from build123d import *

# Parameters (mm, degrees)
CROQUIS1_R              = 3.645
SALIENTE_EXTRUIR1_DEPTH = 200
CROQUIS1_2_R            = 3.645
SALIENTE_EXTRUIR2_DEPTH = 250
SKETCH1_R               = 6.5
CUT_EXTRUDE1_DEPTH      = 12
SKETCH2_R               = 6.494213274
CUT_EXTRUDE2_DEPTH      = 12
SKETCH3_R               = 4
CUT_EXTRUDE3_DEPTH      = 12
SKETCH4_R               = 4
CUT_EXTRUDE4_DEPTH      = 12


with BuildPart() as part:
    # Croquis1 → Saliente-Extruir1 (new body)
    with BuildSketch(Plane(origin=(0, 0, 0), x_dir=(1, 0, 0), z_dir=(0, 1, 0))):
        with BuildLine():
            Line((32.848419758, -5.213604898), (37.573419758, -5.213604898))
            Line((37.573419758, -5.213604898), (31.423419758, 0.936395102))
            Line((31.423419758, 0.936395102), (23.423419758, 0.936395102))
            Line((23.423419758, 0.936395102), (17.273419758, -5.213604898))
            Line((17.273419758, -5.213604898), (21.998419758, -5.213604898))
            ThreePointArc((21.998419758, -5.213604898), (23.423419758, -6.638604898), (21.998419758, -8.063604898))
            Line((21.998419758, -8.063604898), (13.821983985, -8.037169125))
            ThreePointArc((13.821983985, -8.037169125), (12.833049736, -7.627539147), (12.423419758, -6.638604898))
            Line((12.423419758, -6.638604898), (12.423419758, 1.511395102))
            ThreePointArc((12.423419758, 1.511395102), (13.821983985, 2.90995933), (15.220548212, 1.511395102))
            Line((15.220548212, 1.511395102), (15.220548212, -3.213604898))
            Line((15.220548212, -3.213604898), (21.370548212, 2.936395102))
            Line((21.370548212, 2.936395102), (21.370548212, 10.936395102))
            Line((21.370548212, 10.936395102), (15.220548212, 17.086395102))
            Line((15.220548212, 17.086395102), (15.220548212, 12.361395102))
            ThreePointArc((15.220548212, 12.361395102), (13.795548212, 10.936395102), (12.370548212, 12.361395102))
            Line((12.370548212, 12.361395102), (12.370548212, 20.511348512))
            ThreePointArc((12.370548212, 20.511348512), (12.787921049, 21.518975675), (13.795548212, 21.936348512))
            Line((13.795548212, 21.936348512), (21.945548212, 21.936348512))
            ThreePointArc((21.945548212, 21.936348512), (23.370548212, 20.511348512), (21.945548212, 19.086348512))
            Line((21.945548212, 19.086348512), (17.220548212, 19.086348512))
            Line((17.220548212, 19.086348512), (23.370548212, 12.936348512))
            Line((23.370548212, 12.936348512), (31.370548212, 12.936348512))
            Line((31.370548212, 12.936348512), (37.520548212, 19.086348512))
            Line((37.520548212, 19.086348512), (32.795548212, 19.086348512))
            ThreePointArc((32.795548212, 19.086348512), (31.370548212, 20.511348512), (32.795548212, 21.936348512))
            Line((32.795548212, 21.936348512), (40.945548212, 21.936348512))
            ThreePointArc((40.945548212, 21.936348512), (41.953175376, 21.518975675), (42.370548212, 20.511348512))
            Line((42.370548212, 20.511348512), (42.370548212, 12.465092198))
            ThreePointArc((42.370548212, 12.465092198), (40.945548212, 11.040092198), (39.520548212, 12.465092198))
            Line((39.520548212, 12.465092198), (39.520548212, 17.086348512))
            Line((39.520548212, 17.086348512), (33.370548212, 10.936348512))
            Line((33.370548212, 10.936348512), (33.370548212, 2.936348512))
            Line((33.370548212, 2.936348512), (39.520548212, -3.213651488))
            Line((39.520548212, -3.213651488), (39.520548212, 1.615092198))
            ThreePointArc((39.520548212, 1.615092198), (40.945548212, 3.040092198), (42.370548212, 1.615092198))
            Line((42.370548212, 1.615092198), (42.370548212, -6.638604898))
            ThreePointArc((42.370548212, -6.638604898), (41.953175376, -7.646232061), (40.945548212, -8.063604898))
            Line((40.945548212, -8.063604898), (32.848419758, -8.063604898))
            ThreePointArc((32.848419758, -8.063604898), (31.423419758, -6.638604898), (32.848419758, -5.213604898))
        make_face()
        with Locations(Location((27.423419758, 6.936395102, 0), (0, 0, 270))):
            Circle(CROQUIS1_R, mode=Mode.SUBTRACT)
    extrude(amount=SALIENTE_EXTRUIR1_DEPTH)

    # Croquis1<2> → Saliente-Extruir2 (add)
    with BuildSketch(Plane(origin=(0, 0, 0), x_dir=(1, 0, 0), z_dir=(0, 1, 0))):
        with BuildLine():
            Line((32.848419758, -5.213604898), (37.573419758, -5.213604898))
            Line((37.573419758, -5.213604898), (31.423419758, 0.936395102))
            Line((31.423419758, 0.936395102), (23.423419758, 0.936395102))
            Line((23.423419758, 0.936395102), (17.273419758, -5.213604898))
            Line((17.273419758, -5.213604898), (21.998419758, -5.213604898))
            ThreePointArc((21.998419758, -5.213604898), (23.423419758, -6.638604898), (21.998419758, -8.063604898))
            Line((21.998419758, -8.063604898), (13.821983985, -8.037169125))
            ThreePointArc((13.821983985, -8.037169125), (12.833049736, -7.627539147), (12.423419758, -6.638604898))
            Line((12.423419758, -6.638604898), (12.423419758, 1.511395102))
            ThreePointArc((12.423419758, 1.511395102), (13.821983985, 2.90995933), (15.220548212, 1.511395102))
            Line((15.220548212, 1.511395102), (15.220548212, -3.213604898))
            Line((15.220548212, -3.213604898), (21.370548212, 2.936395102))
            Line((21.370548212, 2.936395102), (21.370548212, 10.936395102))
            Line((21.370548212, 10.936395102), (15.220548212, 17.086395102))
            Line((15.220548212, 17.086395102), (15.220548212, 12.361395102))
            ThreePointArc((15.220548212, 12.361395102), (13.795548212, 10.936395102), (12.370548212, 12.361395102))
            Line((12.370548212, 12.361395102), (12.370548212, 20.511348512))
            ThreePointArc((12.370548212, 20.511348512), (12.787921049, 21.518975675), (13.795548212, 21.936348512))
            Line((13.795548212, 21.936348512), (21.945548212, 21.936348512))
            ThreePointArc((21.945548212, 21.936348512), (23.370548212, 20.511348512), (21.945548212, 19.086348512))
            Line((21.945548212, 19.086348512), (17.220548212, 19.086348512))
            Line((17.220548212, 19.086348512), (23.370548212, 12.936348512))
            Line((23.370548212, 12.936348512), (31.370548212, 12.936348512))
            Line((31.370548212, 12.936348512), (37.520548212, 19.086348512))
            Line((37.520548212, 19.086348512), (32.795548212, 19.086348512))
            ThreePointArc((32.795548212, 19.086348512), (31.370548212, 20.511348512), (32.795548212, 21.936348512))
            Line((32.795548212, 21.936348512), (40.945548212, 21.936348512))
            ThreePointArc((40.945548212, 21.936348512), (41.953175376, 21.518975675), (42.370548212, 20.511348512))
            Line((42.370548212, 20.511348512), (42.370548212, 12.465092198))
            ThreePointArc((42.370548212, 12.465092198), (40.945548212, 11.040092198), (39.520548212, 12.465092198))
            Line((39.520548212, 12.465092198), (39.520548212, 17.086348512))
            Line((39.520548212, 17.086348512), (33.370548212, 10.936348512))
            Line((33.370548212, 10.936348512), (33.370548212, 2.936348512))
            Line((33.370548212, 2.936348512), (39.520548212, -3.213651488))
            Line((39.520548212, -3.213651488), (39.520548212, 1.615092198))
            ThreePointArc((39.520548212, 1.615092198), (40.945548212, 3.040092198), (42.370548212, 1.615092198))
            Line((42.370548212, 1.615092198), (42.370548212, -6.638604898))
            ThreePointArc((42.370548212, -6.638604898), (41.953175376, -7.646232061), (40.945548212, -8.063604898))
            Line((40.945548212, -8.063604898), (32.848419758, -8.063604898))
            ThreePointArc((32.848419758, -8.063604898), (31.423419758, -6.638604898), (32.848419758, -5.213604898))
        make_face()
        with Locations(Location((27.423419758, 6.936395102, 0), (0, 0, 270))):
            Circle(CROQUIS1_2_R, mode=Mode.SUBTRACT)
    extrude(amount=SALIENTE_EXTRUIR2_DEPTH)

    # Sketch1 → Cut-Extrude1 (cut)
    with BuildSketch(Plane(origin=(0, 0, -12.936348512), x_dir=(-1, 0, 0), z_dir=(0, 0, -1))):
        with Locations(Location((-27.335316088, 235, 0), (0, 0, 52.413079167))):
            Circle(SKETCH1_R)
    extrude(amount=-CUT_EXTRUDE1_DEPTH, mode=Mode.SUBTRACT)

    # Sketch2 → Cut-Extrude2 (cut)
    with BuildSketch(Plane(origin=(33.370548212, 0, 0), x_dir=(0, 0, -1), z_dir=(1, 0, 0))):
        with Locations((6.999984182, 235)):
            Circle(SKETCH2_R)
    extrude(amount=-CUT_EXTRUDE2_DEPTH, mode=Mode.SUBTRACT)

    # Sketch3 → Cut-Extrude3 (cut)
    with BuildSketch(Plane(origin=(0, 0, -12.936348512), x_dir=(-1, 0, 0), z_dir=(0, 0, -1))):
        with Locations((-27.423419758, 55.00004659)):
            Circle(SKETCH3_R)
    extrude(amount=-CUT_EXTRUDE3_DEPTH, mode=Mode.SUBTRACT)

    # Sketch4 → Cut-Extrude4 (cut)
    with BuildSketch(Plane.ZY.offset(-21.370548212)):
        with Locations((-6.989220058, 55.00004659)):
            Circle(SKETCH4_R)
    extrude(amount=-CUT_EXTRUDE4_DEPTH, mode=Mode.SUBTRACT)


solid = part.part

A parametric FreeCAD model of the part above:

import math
import FreeCAD as App
import Part
import Sketcher

V = App.Vector
Q = App.Units.Quantity

doc = App.newDocument("Part")
body = doc.addObject("PartDesign::Body", "Body")

sketch1 = body.newObject("Sketcher::SketchObject", "Sketch")
sketch1.AttachmentSupport = (doc.getObject("XZ_Plane"), [""])
sketch1.MapMode = "FlatFace"
sketch1.addGeometry(Part.LineSegment(V(37.6, 5.2, 0), V(32.8, 5.2, 0)), False)
sketch1.addGeometry(Part.ArcOfCircle(Part.Circle(V(32.8, 6.6, 0), V(0, 0, 1), 1.4), math.radians(90), math.radians(270)), False)
sketch1.addGeometry(Part.LineSegment(V(32.8, 8.1, 0), V(40.9, 8.1, 0)), False)
sketch1.addGeometry(Part.ArcOfCircle(Part.Circle(V(40.9, 6.6, 0), V(0, 0, 1), 1.4), math.radians(0), math.radians(90)), False)
sketch1.addGeometry(Part.LineSegment(V(42.4, 6.6, 0), V(42.4, -1.6, 0)), False)
sketch1.addGeometry(Part.ArcOfCircle(Part.Circle(V(40.9, -1.6, 0), V(0, 0, 1), 1.4), math.radians(180), math.radians(360)), False)
sketch1.addGeometry(Part.LineSegment(V(39.5, -1.6, 0), V(39.5, 3.2, 0)), False)
sketch1.addGeometry(Part.LineSegment(V(39.5, 3.2, 0), V(33.4, -2.9, 0)), False)
sketch1.addGeometry(Part.LineSegment(V(33.4, -2.9, 0), V(33.4, -10.9, 0)), False)
sketch1.addGeometry(Part.LineSegment(V(33.4, -10.9, 0), V(39.5, -17.1, 0)), False)
sketch1.addGeometry(Part.LineSegment(V(39.5, -17.1, 0), V(39.5, -12.5, 0)), False)
sketch1.addGeometry(Part.ArcOfCircle(Part.Circle(V(40.9, -12.5, 0), V(0, 0, 1), 1.4), math.radians(0), math.radians(180)), False)
sketch1.addGeometry(Part.LineSegment(V(42.4, -12.5, 0), V(42.4, -20.5, 0)), False)
sketch1.addGeometry(Part.ArcOfCircle(Part.Circle(V(40.9, -20.5, 0), V(0, 0, 1), 1.4), math.radians(-90), math.radians(0)), False)
sketch1.addGeometry(Part.LineSegment(V(40.9, -21.9, 0), V(32.8, -21.9, 0)), False)
sketch1.addGeometry(Part.ArcOfCircle(Part.Circle(V(32.8, -20.5, 0), V(0, 0, 1), 1.4), math.radians(90), math.radians(270)), False)
sketch1.addGeometry(Part.LineSegment(V(32.8, -19.1, 0), V(37.5, -19.1, 0)), False)
sketch1.addGeometry(Part.LineSegment(V(37.5, -19.1, 0), V(31.4, -12.9, 0)), False)
sketch1.addGeometry(Part.LineSegment(V(31.4, -12.9, 0), V(23.4, -12.9, 0)), False)
sketch1.addGeometry(Part.LineSegment(V(23.4, -12.9, 0), V(17.2, -19.1, 0)), False)
sketch1.addGeometry(Part.LineSegment(V(17.2, -19.1, 0), V(21.9, -19.1, 0)), False)
sketch1.addGeometry(Part.ArcOfCircle(Part.Circle(V(21.9, -20.5, 0), V(0, 0, 1), 1.4), math.radians(-90), math.radians(90)), False)
sketch1.addGeometry(Part.LineSegment(V(21.9, -21.9, 0), V(13.8, -21.9, 0)), False)
sketch1.addGeometry(Part.ArcOfCircle(Part.Circle(V(13.8, -20.5, 0), V(0, 0, 1), 1.4), math.radians(-180), math.radians(-90)), False)
sketch1.addGeometry(Part.LineSegment(V(12.4, -20.5, 0), V(12.4, -12.4, 0)), False)
sketch1.addGeometry(Part.ArcOfCircle(Part.Circle(V(13.8, -12.4, 0), V(0, 0, 1), 1.4), math.radians(0), math.radians(180)), False)
sketch1.addGeometry(Part.LineSegment(V(15.2, -12.4, 0), V(15.2, -17.1, 0)), False)
sketch1.addGeometry(Part.LineSegment(V(15.2, -17.1, 0), V(21.4, -10.9, 0)), False)
sketch1.addGeometry(Part.LineSegment(V(21.4, -10.9, 0), V(21.4, -2.9, 0)), False)
sketch1.addGeometry(Part.LineSegment(V(21.4, -2.9, 0), V(15.2, 3.2, 0)), False)
sketch1.addGeometry(Part.LineSegment(V(15.2, 3.2, 0), V(15.2, -1.5, 0)), False)
sketch1.addGeometry(Part.ArcOfCircle(Part.Circle(V(13.8, -1.5, 0), V(0, 0, 1), 1.4), math.radians(180), math.radians(360)), False)
sketch1.addGeometry(Part.LineSegment(V(12.4, -1.5, 0), V(12.4, 6.6, 0)), False)
sketch1.addGeometry(Part.ArcOfCircle(Part.Circle(V(13.8, 6.6, 0), V(0, 0, 1), 1.4), math.radians(90), math.radians(180)), False)
sketch1.addGeometry(Part.LineSegment(V(13.8, 8, 0), V(22, 8.1, 0)), False)
sketch1.addGeometry(Part.ArcOfCircle(Part.Circle(V(22, 6.6, 0), V(0, 0, 1), 1.4), math.radians(-90), math.radians(90)), False)
sketch1.addGeometry(Part.LineSegment(V(22, 5.2, 0), V(17.3, 5.2, 0)), False)
sketch1.addGeometry(Part.LineSegment(V(17.3, 5.2, 0), V(23.4, -0.9, 0)), False)
sketch1.addGeometry(Part.LineSegment(V(23.4, -0.9, 0), V(31.4, -0.9, 0)), False)
sketch1.addGeometry(Part.LineSegment(V(31.4, -0.9, 0), V(37.6, 5.2, 0)), False)
sketch1.addGeometry(Part.Circle(V(27.4, -6.9, 0), V(0, 0, 1), 3.6), False)
sketch1.addConstraint(Sketcher.Constraint("Tangent", 0, 2, 1, 2))
sketch1.addConstraint(Sketcher.Constraint("Tangent", 1, 1, 2, 1))
sketch1.addConstraint(Sketcher.Constraint("Tangent", 2, 2, 3, 2))
sketch1.addConstraint(Sketcher.Constraint("Tangent", 3, 1, 4, 1))
sketch1.addConstraint(Sketcher.Constraint("Tangent", 4, 2, 5, 2))
sketch1.addConstraint(Sketcher.Constraint("Tangent", 5, 1, 6, 1))
sketch1.addConstraint(Sketcher.Constraint("Coincident", 6, 2, 7, 1))
sketch1.addConstraint(Sketcher.Constraint("Coincident", 7, 2, 8, 1))
sketch1.addConstraint(Sketcher.Constraint("Coincident", 8, 2, 9, 1))
sketch1.addConstraint(Sketcher.Constraint("Coincident", 9, 2, 10, 1))
sketch1.addConstraint(Sketcher.Constraint("Tangent", 10, 2, 11, 2))
sketch1.addConstraint(Sketcher.Constraint("Tangent", 11, 1, 12, 1))
sketch1.addConstraint(Sketcher.Constraint("Tangent", 12, 2, 13, 2))
sketch1.addConstraint(Sketcher.Constraint("Tangent", 13, 1, 14, 1))
sketch1.addConstraint(Sketcher.Constraint("Tangent", 14, 2, 15, 2))
sketch1.addConstraint(Sketcher.Constraint("Tangent", 15, 1, 16, 1))
sketch1.addConstraint(Sketcher.Constraint("Coincident", 16, 2, 17, 1))
sketch1.addConstraint(Sketcher.Constraint("Coincident", 17, 2, 18, 1))
sketch1.addConstraint(Sketcher.Constraint("Coincident", 18, 2, 19, 1))
sketch1.addConstraint(Sketcher.Constraint("Coincident", 19, 2, 20, 1))
sketch1.addConstraint(Sketcher.Constraint("Tangent", 20, 2, 21, 2))
sketch1.addConstraint(Sketcher.Constraint("Tangent", 21, 1, 22, 1))
sketch1.addConstraint(Sketcher.Constraint("Tangent", 22, 2, 23, 2))
sketch1.addConstraint(Sketcher.Constraint("Tangent", 23, 1, 24, 1))
sketch1.addConstraint(Sketcher.Constraint("Tangent", 24, 2, 25, 2))
sketch1.addConstraint(Sketcher.Constraint("Tangent", 25, 1, 26, 1))
sketch1.addConstraint(Sketcher.Constraint("Coincident", 26, 2, 27, 1))
sketch1.addConstraint(Sketcher.Constraint("Coincident", 27, 2, 28, 1))
sketch1.addConstraint(Sketcher.Constraint("Coincident", 28, 2, 29, 1))
sketch1.addConstraint(Sketcher.Constraint("Coincident", 29, 2, 30, 1))
sketch1.addConstraint(Sketcher.Constraint("Tangent", 30, 2, 31, 2))
sketch1.addConstraint(Sketcher.Constraint("Tangent", 31, 1, 32, 1))
sketch1.addConstraint(Sketcher.Constraint("Tangent", 32, 2, 33, 2))
sketch1.addConstraint(Sketcher.Constraint("Coincident", 33, 1, 34, 1))
sketch1.addConstraint(Sketcher.Constraint("Coincident", 34, 2, 35, 2))
sketch1.addConstraint(Sketcher.Constraint("Tangent", 35, 1, 36, 1))
sketch1.addConstraint(Sketcher.Constraint("Coincident", 36, 2, 37, 1))
sketch1.addConstraint(Sketcher.Constraint("Coincident", 37, 2, 38, 1))
sketch1.addConstraint(Sketcher.Constraint("Coincident", 38, 2, 39, 1))
sketch1.addConstraint(Sketcher.Constraint("Coincident", 39, 2, 0, 1))
sketch1.addConstraint(Sketcher.Constraint("Horizontal", 0))
sketch1.addConstraint(Sketcher.Constraint("Horizontal", 2))
sketch1.addConstraint(Sketcher.Constraint("Vertical", 4))
sketch1.addConstraint(Sketcher.Constraint("Vertical", 6))
sketch1.addConstraint(Sketcher.Constraint("Vertical", 8))
sketch1.addConstraint(Sketcher.Constraint("Vertical", 10))
sketch1.addConstraint(Sketcher.Constraint("Vertical", 12))
sketch1.addConstraint(Sketcher.Constraint("Horizontal", 14))
sketch1.addConstraint(Sketcher.Constraint("Horizontal", 16))
sketch1.addConstraint(Sketcher.Constraint("Horizontal", 18))
sketch1.addConstraint(Sketcher.Constraint("Horizontal", 20))
sketch1.addConstraint(Sketcher.Constraint("Horizontal", 22))
sketch1.addConstraint(Sketcher.Constraint("Vertical", 24))
sketch1.addConstraint(Sketcher.Constraint("Vertical", 26))
sketch1.addConstraint(Sketcher.Constraint("Vertical", 28))
sketch1.addConstraint(Sketcher.Constraint("Vertical", 30))
sketch1.addConstraint(Sketcher.Constraint("Vertical", 32))
sketch1.addConstraint(Sketcher.Constraint("Horizontal", 36))
sketch1.addConstraint(Sketcher.Constraint("Horizontal", 38))
sketch1.addConstraint(Sketcher.Constraint("Equal", 1, 3))
sketch1.addConstraint(Sketcher.Constraint("Equal", 3, 5))
sketch1.addConstraint(Sketcher.Constraint("Equal", 5, 11))
sketch1.addConstraint(Sketcher.Constraint("Equal", 11, 13))
sketch1.addConstraint(Sketcher.Constraint("Equal", 13, 15))
sketch1.addConstraint(Sketcher.Constraint("Equal", 15, 21))
sketch1.addConstraint(Sketcher.Constraint("Equal", 21, 23))
sketch1.addConstraint(Sketcher.Constraint("Equal", 23, 25))
sketch1.addConstraint(Sketcher.Constraint("Equal", 31, 33))
sketch1.addConstraint(Sketcher.Constraint("Equal", 25, 35))
sketch1.addConstraint(Sketcher.Constraint("Perpendicular", 7, 9))
sketch1.addConstraint(Sketcher.Constraint("Parallel", 9, 17))
sketch1.addConstraint(Sketcher.Constraint("Perpendicular", 17, 19))
sketch1.addConstraint(Sketcher.Constraint("Parallel", 19, 27))
sketch1.addConstraint(Sketcher.Constraint("Perpendicular", 27, 29))
sketch1.addConstraint(Sketcher.Constraint("Parallel", 29, 37))
sketch1.addConstraint(Sketcher.Constraint("Perpendicular", 37, 39))
sketch1.addConstraint(Sketcher.Constraint("Horizontal", 15, 3, 21, 3))
sketch1.addConstraint(Sketcher.Constraint("Horizontal", 3, 3, 33, 3))
sketch1.addConstraint(Sketcher.Constraint("Horizontal", 33, 3, 35, 3))
sketch1.addConstraint(Sketcher.Constraint("Vertical", 5, 3, 11, 3))
sketch1.addConstraint(Sketcher.Constraint("Vertical", 26, 2, 29, 2))
sketch1.addConstraint(Sketcher.Constraint("Vertical", 31, 3, 33, 1))
sketch1.addConstraint(Sketcher.Constraint("Vertical", 35, 3, 34, 2))
sketch1.addConstraint(Sketcher.Constraint("Equal", 0, 16))
sketch1.addConstraint(Sketcher.Constraint("Equal", 16, 20))
sketch1.addConstraint(Sketcher.Constraint("Equal", 14, 22))
sketch1.addConstraint(Sketcher.Constraint("Equal", 20, 36))
sketch1.addConstraint(Sketcher.Constraint("Equal", 18, 38))
sketch1.addConstraint(Sketcher.Constraint("Equal", 38, 8))
sketch1.addConstraint(Sketcher.Constraint("Equal", 36, 26))
sketch1.addConstraint(Sketcher.Constraint("Equal", 8, 28))
sketch1.addConstraint(Sketcher.Constraint("Equal", 26, 30))
sketch1.addConstraint(Sketcher.Constraint("Equal", 22, 32))
sketch1.addConstraint(Sketcher.Constraint("Equal", 7, 9))
sketch1.addConstraint(Sketcher.Constraint("Equal", 9, 17))
sketch1.addConstraint(Sketcher.Constraint("Equal", 19, 27))
sketch1.addConstraint(Sketcher.Constraint("Equal", 29, 37))
sketch1.addConstraint(Sketcher.Constraint("Diameter", 40, Q("7.29 mm")))
sketch1.addConstraint(Sketcher.Constraint("DistanceX", 18, 2, 18, 1, Q("8 mm")))
sketch1.addConstraint(Sketcher.Constraint("Radius", 1, Q("1.425 mm")))
sketch1.addConstraint(Sketcher.Constraint("DistanceX", 21, 3, 13, 3, Q("19 mm")))
sketch1.addConstraint(Sketcher.Constraint("DistanceX", 8, 2, 11, 1, Q("9 mm")))
sketch1.addConstraint(Sketcher.Constraint("DistanceY", 15, 1, 9, 2, Q("2 mm")))
sketch1.addConstraint(Sketcher.Constraint("DistanceX", 16, 2, 9, 2, Q("2 mm")))
sketch1.addConstraint(Sketcher.Constraint("DistanceY", 27, 2, 40, 3, Q("4 mm")))
sketch1.addConstraint(Sketcher.Constraint("DistanceX", 37, 2, 40, 3, Q("4 mm")))
sketch1.addConstraint(Sketcher.Constraint("DistanceY", 11, 3, 5, 3, Q("10.85 mm")))
sketch1.addConstraint(Sketcher.Constraint("Radius", 31, Q("1.398564 mm")))
sketch1.addConstraint(Sketcher.Constraint("DistanceX", 32, 2, 34, 2, Q("9.575 mm")))
sketch1.addConstraint(Sketcher.Constraint("DistanceY", 4, 2, 4, 1, Q("8.253697 mm")))
sketch1.addConstraint(Sketcher.Constraint("DistanceY", 6, 1, 6, 2, Q("4.828744 mm")))
sketch1.addConstraint(Sketcher.Constraint("DistanceX", -1, 1, 1, 3, Q("32.84842 mm")))
sketch1.addConstraint(Sketcher.Constraint("DistanceY", 13, 3, -1, 1, Q("20.511349 mm")))
pad1 = body.newObject("PartDesign::Pad", "Pad")
pad1.Profile = sketch1
pad1.Length = 200
pad1.Reversed = True

sketch2 = body.newObject("Sketcher::SketchObject", "Sketch001")
sketch2.AttachmentSupport = (doc.getObject("XZ_Plane"), [""])
sketch2.MapMode = "FlatFace"
sketch2.addGeometry(Part.LineSegment(V(37.6, 5.2, 0), V(32.8, 5.2, 0)), False)
sketch2.addGeometry(Part.ArcOfCircle(Part.Circle(V(32.8, 6.6, 0), V(0, 0, 1), 1.4), math.radians(90), math.radians(270)), False)
sketch2.addGeometry(Part.LineSegment(V(32.8, 8.1, 0), V(40.9, 8.1, 0)), False)
sketch2.addGeometry(Part.ArcOfCircle(Part.Circle(V(40.9, 6.6, 0), V(0, 0, 1), 1.4), math.radians(0), math.radians(90)), False)
sketch2.addGeometry(Part.LineSegment(V(42.4, 6.6, 0), V(42.4, -1.6, 0)), False)
sketch2.addGeometry(Part.ArcOfCircle(Part.Circle(V(40.9, -1.6, 0), V(0, 0, 1), 1.4), math.radians(180), math.radians(360)), False)
sketch2.addGeometry(Part.LineSegment(V(39.5, -1.6, 0), V(39.5, 3.2, 0)), False)
sketch2.addGeometry(Part.LineSegment(V(39.5, 3.2, 0), V(33.4, -2.9, 0)), False)
sketch2.addGeometry(Part.LineSegment(V(33.4, -2.9, 0), V(33.4, -10.9, 0)), False)
sketch2.addGeometry(Part.LineSegment(V(33.4, -10.9, 0), V(39.5, -17.1, 0)), False)
sketch2.addGeometry(Part.LineSegment(V(39.5, -17.1, 0), V(39.5, -12.5, 0)), False)
sketch2.addGeometry(Part.ArcOfCircle(Part.Circle(V(40.9, -12.5, 0), V(0, 0, 1), 1.4), math.radians(0), math.radians(180)), False)
sketch2.addGeometry(Part.LineSegment(V(42.4, -12.5, 0), V(42.4, -20.5, 0)), False)
sketch2.addGeometry(Part.ArcOfCircle(Part.Circle(V(40.9, -20.5, 0), V(0, 0, 1), 1.4), math.radians(-90), math.radians(0)), False)
sketch2.addGeometry(Part.LineSegment(V(40.9, -21.9, 0), V(32.8, -21.9, 0)), False)
sketch2.addGeometry(Part.ArcOfCircle(Part.Circle(V(32.8, -20.5, 0), V(0, 0, 1), 1.4), math.radians(90), math.radians(270)), False)
sketch2.addGeometry(Part.LineSegment(V(32.8, -19.1, 0), V(37.5, -19.1, 0)), False)
sketch2.addGeometry(Part.LineSegment(V(37.5, -19.1, 0), V(31.4, -12.9, 0)), False)
sketch2.addGeometry(Part.LineSegment(V(31.4, -12.9, 0), V(23.4, -12.9, 0)), False)
sketch2.addGeometry(Part.LineSegment(V(23.4, -12.9, 0), V(17.2, -19.1, 0)), False)
sketch2.addGeometry(Part.LineSegment(V(17.2, -19.1, 0), V(21.9, -19.1, 0)), False)
sketch2.addGeometry(Part.ArcOfCircle(Part.Circle(V(21.9, -20.5, 0), V(0, 0, 1), 1.4), math.radians(-90), math.radians(90)), False)
sketch2.addGeometry(Part.LineSegment(V(21.9, -21.9, 0), V(13.8, -21.9, 0)), False)
sketch2.addGeometry(Part.ArcOfCircle(Part.Circle(V(13.8, -20.5, 0), V(0, 0, 1), 1.4), math.radians(-180), math.radians(-90)), False)
sketch2.addGeometry(Part.LineSegment(V(12.4, -20.5, 0), V(12.4, -12.4, 0)), False)
sketch2.addGeometry(Part.ArcOfCircle(Part.Circle(V(13.8, -12.4, 0), V(0, 0, 1), 1.4), math.radians(0), math.radians(180)), False)
sketch2.addGeometry(Part.LineSegment(V(15.2, -12.4, 0), V(15.2, -17.1, 0)), False)
sketch2.addGeometry(Part.LineSegment(V(15.2, -17.1, 0), V(21.4, -10.9, 0)), False)
sketch2.addGeometry(Part.LineSegment(V(21.4, -10.9, 0), V(21.4, -2.9, 0)), False)
sketch2.addGeometry(Part.LineSegment(V(21.4, -2.9, 0), V(15.2, 3.2, 0)), False)
sketch2.addGeometry(Part.LineSegment(V(15.2, 3.2, 0), V(15.2, -1.5, 0)), False)
sketch2.addGeometry(Part.ArcOfCircle(Part.Circle(V(13.8, -1.5, 0), V(0, 0, 1), 1.4), math.radians(180), math.radians(360)), False)
sketch2.addGeometry(Part.LineSegment(V(12.4, -1.5, 0), V(12.4, 6.6, 0)), False)
sketch2.addGeometry(Part.ArcOfCircle(Part.Circle(V(13.8, 6.6, 0), V(0, 0, 1), 1.4), math.radians(90), math.radians(180)), False)
sketch2.addGeometry(Part.LineSegment(V(13.8, 8, 0), V(22, 8.1, 0)), False)
sketch2.addGeometry(Part.ArcOfCircle(Part.Circle(V(22, 6.6, 0), V(0, 0, 1), 1.4), math.radians(-90), math.radians(90)), False)
sketch2.addGeometry(Part.LineSegment(V(22, 5.2, 0), V(17.3, 5.2, 0)), False)
sketch2.addGeometry(Part.LineSegment(V(17.3, 5.2, 0), V(23.4, -0.9, 0)), False)
sketch2.addGeometry(Part.LineSegment(V(23.4, -0.9, 0), V(31.4, -0.9, 0)), False)
sketch2.addGeometry(Part.LineSegment(V(31.4, -0.9, 0), V(37.6, 5.2, 0)), False)
sketch2.addGeometry(Part.Circle(V(27.4, -6.9, 0), V(0, 0, 1), 3.6), False)
sketch2.addConstraint(Sketcher.Constraint("Tangent", 0, 2, 1, 2))
sketch2.addConstraint(Sketcher.Constraint("Tangent", 1, 1, 2, 1))
sketch2.addConstraint(Sketcher.Constraint("Tangent", 2, 2, 3, 2))
sketch2.addConstraint(Sketcher.Constraint("Tangent", 3, 1, 4, 1))
sketch2.addConstraint(Sketcher.Constraint("Tangent", 4, 2, 5, 2))
sketch2.addConstraint(Sketcher.Constraint("Tangent", 5, 1, 6, 1))
sketch2.addConstraint(Sketcher.Constraint("Coincident", 6, 2, 7, 1))
sketch2.addConstraint(Sketcher.Constraint("Coincident", 7, 2, 8, 1))
sketch2.addConstraint(Sketcher.Constraint("Coincident", 8, 2, 9, 1))
sketch2.addConstraint(Sketcher.Constraint("Coincident", 9, 2, 10, 1))
sketch2.addConstraint(Sketcher.Constraint("Tangent", 10, 2, 11, 2))
sketch2.addConstraint(Sketcher.Constraint("Tangent", 11, 1, 12, 1))
sketch2.addConstraint(Sketcher.Constraint("Tangent", 12, 2, 13, 2))
sketch2.addConstraint(Sketcher.Constraint("Tangent", 13, 1, 14, 1))
sketch2.addConstraint(Sketcher.Constraint("Tangent", 14, 2, 15, 2))
sketch2.addConstraint(Sketcher.Constraint("Tangent", 15, 1, 16, 1))
sketch2.addConstraint(Sketcher.Constraint("Coincident", 16, 2, 17, 1))
sketch2.addConstraint(Sketcher.Constraint("Coincident", 17, 2, 18, 1))
sketch2.addConstraint(Sketcher.Constraint("Coincident", 18, 2, 19, 1))
sketch2.addConstraint(Sketcher.Constraint("Coincident", 19, 2, 20, 1))
sketch2.addConstraint(Sketcher.Constraint("Tangent", 20, 2, 21, 2))
sketch2.addConstraint(Sketcher.Constraint("Tangent", 21, 1, 22, 1))
sketch2.addConstraint(Sketcher.Constraint("Tangent", 22, 2, 23, 2))
sketch2.addConstraint(Sketcher.Constraint("Tangent", 23, 1, 24, 1))
sketch2.addConstraint(Sketcher.Constraint("Tangent", 24, 2, 25, 2))
sketch2.addConstraint(Sketcher.Constraint("Tangent", 25, 1, 26, 1))
sketch2.addConstraint(Sketcher.Constraint("Coincident", 26, 2, 27, 1))
sketch2.addConstraint(Sketcher.Constraint("Coincident", 27, 2, 28, 1))
sketch2.addConstraint(Sketcher.Constraint("Coincident", 28, 2, 29, 1))
sketch2.addConstraint(Sketcher.Constraint("Coincident", 29, 2, 30, 1))
sketch2.addConstraint(Sketcher.Constraint("Tangent", 30, 2, 31, 2))
sketch2.addConstraint(Sketcher.Constraint("Tangent", 31, 1, 32, 1))
sketch2.addConstraint(Sketcher.Constraint("Tangent", 32, 2, 33, 2))
sketch2.addConstraint(Sketcher.Constraint("Coincident", 33, 1, 34, 1))
sketch2.addConstraint(Sketcher.Constraint("Coincident", 34, 2, 35, 2))
sketch2.addConstraint(Sketcher.Constraint("Tangent", 35, 1, 36, 1))
sketch2.addConstraint(Sketcher.Constraint("Coincident", 36, 2, 37, 1))
sketch2.addConstraint(Sketcher.Constraint("Coincident", 37, 2, 38, 1))
sketch2.addConstraint(Sketcher.Constraint("Coincident", 38, 2, 39, 1))
sketch2.addConstraint(Sketcher.Constraint("Coincident", 39, 2, 0, 1))
sketch2.addConstraint(Sketcher.Constraint("Horizontal", 0))
sketch2.addConstraint(Sketcher.Constraint("Horizontal", 2))
sketch2.addConstraint(Sketcher.Constraint("Vertical", 4))
sketch2.addConstraint(Sketcher.Constraint("Vertical", 6))
sketch2.addConstraint(Sketcher.Constraint("Vertical", 8))
sketch2.addConstraint(Sketcher.Constraint("Vertical", 10))
sketch2.addConstraint(Sketcher.Constraint("Vertical", 12))
sketch2.addConstraint(Sketcher.Constraint("Horizontal", 14))
sketch2.addConstraint(Sketcher.Constraint("Horizontal", 16))
sketch2.addConstraint(Sketcher.Constraint("Horizontal", 18))
sketch2.addConstraint(Sketcher.Constraint("Horizontal", 20))
sketch2.addConstraint(Sketcher.Constraint("Horizontal", 22))
sketch2.addConstraint(Sketcher.Constraint("Vertical", 24))
sketch2.addConstraint(Sketcher.Constraint("Vertical", 26))
sketch2.addConstraint(Sketcher.Constraint("Vertical", 28))
sketch2.addConstraint(Sketcher.Constraint("Vertical", 30))
sketch2.addConstraint(Sketcher.Constraint("Vertical", 32))
sketch2.addConstraint(Sketcher.Constraint("Horizontal", 36))
sketch2.addConstraint(Sketcher.Constraint("Horizontal", 38))
sketch2.addConstraint(Sketcher.Constraint("Equal", 1, 3))
sketch2.addConstraint(Sketcher.Constraint("Equal", 3, 5))
sketch2.addConstraint(Sketcher.Constraint("Equal", 5, 11))
sketch2.addConstraint(Sketcher.Constraint("Equal", 11, 13))
sketch2.addConstraint(Sketcher.Constraint("Equal", 13, 15))
sketch2.addConstraint(Sketcher.Constraint("Equal", 15, 21))
sketch2.addConstraint(Sketcher.Constraint("Equal", 21, 23))
sketch2.addConstraint(Sketcher.Constraint("Equal", 23, 25))
sketch2.addConstraint(Sketcher.Constraint("Equal", 31, 33))
sketch2.addConstraint(Sketcher.Constraint("Equal", 25, 35))
sketch2.addConstraint(Sketcher.Constraint("Perpendicular", 7, 9))
sketch2.addConstraint(Sketcher.Constraint("Parallel", 9, 17))
sketch2.addConstraint(Sketcher.Constraint("Perpendicular", 17, 19))
sketch2.addConstraint(Sketcher.Constraint("Parallel", 19, 27))
sketch2.addConstraint(Sketcher.Constraint("Perpendicular", 27, 29))
sketch2.addConstraint(Sketcher.Constraint("Parallel", 29, 37))
sketch2.addConstraint(Sketcher.Constraint("Perpendicular", 37, 39))
sketch2.addConstraint(Sketcher.Constraint("Horizontal", 15, 3, 21, 3))
sketch2.addConstraint(Sketcher.Constraint("Horizontal", 3, 3, 33, 3))
sketch2.addConstraint(Sketcher.Constraint("Horizontal", 33, 3, 35, 3))
sketch2.addConstraint(Sketcher.Constraint("Vertical", 5, 3, 11, 3))
sketch2.addConstraint(Sketcher.Constraint("Vertical", 26, 2, 29, 2))
sketch2.addConstraint(Sketcher.Constraint("Vertical", 31, 3, 33, 1))
sketch2.addConstraint(Sketcher.Constraint("Vertical", 35, 3, 34, 2))
sketch2.addConstraint(Sketcher.Constraint("Equal", 0, 16))
sketch2.addConstraint(Sketcher.Constraint("Equal", 16, 20))
sketch2.addConstraint(Sketcher.Constraint("Equal", 14, 22))
sketch2.addConstraint(Sketcher.Constraint("Equal", 20, 36))
sketch2.addConstraint(Sketcher.Constraint("Equal", 18, 38))
sketch2.addConstraint(Sketcher.Constraint("Equal", 38, 8))
sketch2.addConstraint(Sketcher.Constraint("Equal", 36, 26))
sketch2.addConstraint(Sketcher.Constraint("Equal", 8, 28))
sketch2.addConstraint(Sketcher.Constraint("Equal", 26, 30))
sketch2.addConstraint(Sketcher.Constraint("Equal", 22, 32))
sketch2.addConstraint(Sketcher.Constraint("Equal", 7, 9))
sketch2.addConstraint(Sketcher.Constraint("Equal", 9, 17))
sketch2.addConstraint(Sketcher.Constraint("Equal", 19, 27))
sketch2.addConstraint(Sketcher.Constraint("Equal", 29, 37))
sketch2.addConstraint(Sketcher.Constraint("Diameter", 40, Q("7.29 mm")))
sketch2.addConstraint(Sketcher.Constraint("DistanceX", 18, 2, 18, 1, Q("8 mm")))
sketch2.addConstraint(Sketcher.Constraint("Radius", 1, Q("1.425 mm")))
sketch2.addConstraint(Sketcher.Constraint("DistanceX", 21, 3, 13, 3, Q("19 mm")))
sketch2.addConstraint(Sketcher.Constraint("DistanceX", 8, 2, 11, 1, Q("9 mm")))
sketch2.addConstraint(Sketcher.Constraint("DistanceY", 15, 1, 9, 2, Q("2 mm")))
sketch2.addConstraint(Sketcher.Constraint("DistanceX", 16, 2, 9, 2, Q("2 mm")))
sketch2.addConstraint(Sketcher.Constraint("DistanceY", 27, 2, 40, 3, Q("4 mm")))
sketch2.addConstraint(Sketcher.Constraint("DistanceX", 37, 2, 40, 3, Q("4 mm")))
sketch2.addConstraint(Sketcher.Constraint("DistanceY", 11, 3, 5, 3, Q("10.85 mm")))
sketch2.addConstraint(Sketcher.Constraint("Radius", 31, Q("1.398564 mm")))
sketch2.addConstraint(Sketcher.Constraint("DistanceX", 32, 2, 34, 2, Q("9.575 mm")))
sketch2.addConstraint(Sketcher.Constraint("DistanceY", 4, 2, 4, 1, Q("8.253697 mm")))
sketch2.addConstraint(Sketcher.Constraint("DistanceY", 6, 1, 6, 2, Q("4.828744 mm")))
sketch2.addConstraint(Sketcher.Constraint("DistanceX", -1, 1, 1, 3, Q("32.84842 mm")))
sketch2.addConstraint(Sketcher.Constraint("DistanceY", 13, 3, -1, 1, Q("20.511349 mm")))
pad2 = body.newObject("PartDesign::Pad", "Pad001")
pad2.Profile = sketch2
pad2.Length = 250
pad2.Reversed = True

sketch3 = body.newObject("Sketcher::SketchObject", "Sketch002")
sketch3.AttachmentSupport = (doc.getObject("XY_Plane"), [""])
sketch3.MapMode = "FlatFace"
sketch3.AttachmentOffset = App.Placement(V(0, 0, -12.936349), App.Rotation())
sketch3.addGeometry(Part.Circle(V(27, 235, 0), V(0, 0, 1), 6), False)
sketch3.addConstraint(Sketcher.Constraint("Diameter", 0, Q("13 mm")))
sketch3.addConstraint(Sketcher.Constraint("DistanceY", -1, 1, 0, 3, Q("235 mm")))
sketch3.addConstraint(Sketcher.Constraint("DistanceX", -1, 1, 0, 3, Q("27.335316 mm")))
pocket1 = body.newObject("PartDesign::Pocket", "Pocket")
pocket1.Profile = sketch3
pocket1.Length = 12
pocket1.Reversed = True

sketch4 = body.newObject("Sketcher::SketchObject", "Sketch003")
sketch4.AttachmentSupport = (doc.getObject("YZ_Plane"), [""])
sketch4.MapMode = "FlatFace"
sketch4.AttachmentOffset = App.Placement(V(0, 0, 33.370548), App.Rotation())
sketch4.addGeometry(Part.Circle(V(235, -7, 0), V(0, 0, 1), 6), False)
sketch4.addConstraint(Sketcher.Constraint("DistanceX", -1, 1, 0, 3, Q("235 mm")))
sketch4.addConstraint(Sketcher.Constraint("Diameter", 0, Q("12.988427 mm")))
sketch4.addConstraint(Sketcher.Constraint("DistanceY", 0, 3, -1, 1, Q("6.999984 mm")))
pocket2 = body.newObject("PartDesign::Pocket", "Pocket001")
pocket2.Profile = sketch4
pocket2.Length = 12

sketch5 = body.newObject("Sketcher::SketchObject", "Sketch004")
sketch5.AttachmentSupport = (doc.getObject("XY_Plane"), [""])
sketch5.MapMode = "FlatFace"
sketch5.AttachmentOffset = App.Placement(V(0, 0, -12.936349), App.Rotation())
sketch5.addGeometry(Part.Circle(V(27.42342, 55.000047, 0), V(0, 0, 1), 4), False)
sketch5.addConstraint(Sketcher.Constraint("Diameter", 0, Q("8 mm")))
sketch5.addConstraint(Sketcher.Constraint("DistanceX", -1, 1, 0, 3, Q("27.42342 mm")))
sketch5.addConstraint(Sketcher.Constraint("DistanceY", -1, 1, 0, 3, Q("55.000047 mm")))
pocket3 = body.newObject("PartDesign::Pocket", "Pocket002")
pocket3.Profile = sketch5
pocket3.Length = 12
pocket3.Reversed = True

sketch6 = body.newObject("Sketcher::SketchObject", "Sketch005")
sketch6.AttachmentSupport = (doc.getObject("YZ_Plane"), [""])
sketch6.MapMode = "FlatFace"
sketch6.AttachmentOffset = App.Placement(V(0, 0, 21.370548), App.Rotation())
sketch6.addGeometry(Part.Circle(V(55.000047, -6.98922, 0), V(0, 0, 1), 4), False)
sketch6.addConstraint(Sketcher.Constraint("Diameter", 0, Q("8 mm")))
sketch6.addConstraint(Sketcher.Constraint("DistanceY", 0, 3, -1, 1, Q("6.98922 mm")))
sketch6.addConstraint(Sketcher.Constraint("DistanceX", -1, 1, 0, 3, Q("55.000047 mm")))
pocket4 = body.newObject("PartDesign::Pocket", "Pocket003")
pocket4.Profile = sketch6
pocket4.Length = 12
pocket4.Reversed = True

doc.recompute()
